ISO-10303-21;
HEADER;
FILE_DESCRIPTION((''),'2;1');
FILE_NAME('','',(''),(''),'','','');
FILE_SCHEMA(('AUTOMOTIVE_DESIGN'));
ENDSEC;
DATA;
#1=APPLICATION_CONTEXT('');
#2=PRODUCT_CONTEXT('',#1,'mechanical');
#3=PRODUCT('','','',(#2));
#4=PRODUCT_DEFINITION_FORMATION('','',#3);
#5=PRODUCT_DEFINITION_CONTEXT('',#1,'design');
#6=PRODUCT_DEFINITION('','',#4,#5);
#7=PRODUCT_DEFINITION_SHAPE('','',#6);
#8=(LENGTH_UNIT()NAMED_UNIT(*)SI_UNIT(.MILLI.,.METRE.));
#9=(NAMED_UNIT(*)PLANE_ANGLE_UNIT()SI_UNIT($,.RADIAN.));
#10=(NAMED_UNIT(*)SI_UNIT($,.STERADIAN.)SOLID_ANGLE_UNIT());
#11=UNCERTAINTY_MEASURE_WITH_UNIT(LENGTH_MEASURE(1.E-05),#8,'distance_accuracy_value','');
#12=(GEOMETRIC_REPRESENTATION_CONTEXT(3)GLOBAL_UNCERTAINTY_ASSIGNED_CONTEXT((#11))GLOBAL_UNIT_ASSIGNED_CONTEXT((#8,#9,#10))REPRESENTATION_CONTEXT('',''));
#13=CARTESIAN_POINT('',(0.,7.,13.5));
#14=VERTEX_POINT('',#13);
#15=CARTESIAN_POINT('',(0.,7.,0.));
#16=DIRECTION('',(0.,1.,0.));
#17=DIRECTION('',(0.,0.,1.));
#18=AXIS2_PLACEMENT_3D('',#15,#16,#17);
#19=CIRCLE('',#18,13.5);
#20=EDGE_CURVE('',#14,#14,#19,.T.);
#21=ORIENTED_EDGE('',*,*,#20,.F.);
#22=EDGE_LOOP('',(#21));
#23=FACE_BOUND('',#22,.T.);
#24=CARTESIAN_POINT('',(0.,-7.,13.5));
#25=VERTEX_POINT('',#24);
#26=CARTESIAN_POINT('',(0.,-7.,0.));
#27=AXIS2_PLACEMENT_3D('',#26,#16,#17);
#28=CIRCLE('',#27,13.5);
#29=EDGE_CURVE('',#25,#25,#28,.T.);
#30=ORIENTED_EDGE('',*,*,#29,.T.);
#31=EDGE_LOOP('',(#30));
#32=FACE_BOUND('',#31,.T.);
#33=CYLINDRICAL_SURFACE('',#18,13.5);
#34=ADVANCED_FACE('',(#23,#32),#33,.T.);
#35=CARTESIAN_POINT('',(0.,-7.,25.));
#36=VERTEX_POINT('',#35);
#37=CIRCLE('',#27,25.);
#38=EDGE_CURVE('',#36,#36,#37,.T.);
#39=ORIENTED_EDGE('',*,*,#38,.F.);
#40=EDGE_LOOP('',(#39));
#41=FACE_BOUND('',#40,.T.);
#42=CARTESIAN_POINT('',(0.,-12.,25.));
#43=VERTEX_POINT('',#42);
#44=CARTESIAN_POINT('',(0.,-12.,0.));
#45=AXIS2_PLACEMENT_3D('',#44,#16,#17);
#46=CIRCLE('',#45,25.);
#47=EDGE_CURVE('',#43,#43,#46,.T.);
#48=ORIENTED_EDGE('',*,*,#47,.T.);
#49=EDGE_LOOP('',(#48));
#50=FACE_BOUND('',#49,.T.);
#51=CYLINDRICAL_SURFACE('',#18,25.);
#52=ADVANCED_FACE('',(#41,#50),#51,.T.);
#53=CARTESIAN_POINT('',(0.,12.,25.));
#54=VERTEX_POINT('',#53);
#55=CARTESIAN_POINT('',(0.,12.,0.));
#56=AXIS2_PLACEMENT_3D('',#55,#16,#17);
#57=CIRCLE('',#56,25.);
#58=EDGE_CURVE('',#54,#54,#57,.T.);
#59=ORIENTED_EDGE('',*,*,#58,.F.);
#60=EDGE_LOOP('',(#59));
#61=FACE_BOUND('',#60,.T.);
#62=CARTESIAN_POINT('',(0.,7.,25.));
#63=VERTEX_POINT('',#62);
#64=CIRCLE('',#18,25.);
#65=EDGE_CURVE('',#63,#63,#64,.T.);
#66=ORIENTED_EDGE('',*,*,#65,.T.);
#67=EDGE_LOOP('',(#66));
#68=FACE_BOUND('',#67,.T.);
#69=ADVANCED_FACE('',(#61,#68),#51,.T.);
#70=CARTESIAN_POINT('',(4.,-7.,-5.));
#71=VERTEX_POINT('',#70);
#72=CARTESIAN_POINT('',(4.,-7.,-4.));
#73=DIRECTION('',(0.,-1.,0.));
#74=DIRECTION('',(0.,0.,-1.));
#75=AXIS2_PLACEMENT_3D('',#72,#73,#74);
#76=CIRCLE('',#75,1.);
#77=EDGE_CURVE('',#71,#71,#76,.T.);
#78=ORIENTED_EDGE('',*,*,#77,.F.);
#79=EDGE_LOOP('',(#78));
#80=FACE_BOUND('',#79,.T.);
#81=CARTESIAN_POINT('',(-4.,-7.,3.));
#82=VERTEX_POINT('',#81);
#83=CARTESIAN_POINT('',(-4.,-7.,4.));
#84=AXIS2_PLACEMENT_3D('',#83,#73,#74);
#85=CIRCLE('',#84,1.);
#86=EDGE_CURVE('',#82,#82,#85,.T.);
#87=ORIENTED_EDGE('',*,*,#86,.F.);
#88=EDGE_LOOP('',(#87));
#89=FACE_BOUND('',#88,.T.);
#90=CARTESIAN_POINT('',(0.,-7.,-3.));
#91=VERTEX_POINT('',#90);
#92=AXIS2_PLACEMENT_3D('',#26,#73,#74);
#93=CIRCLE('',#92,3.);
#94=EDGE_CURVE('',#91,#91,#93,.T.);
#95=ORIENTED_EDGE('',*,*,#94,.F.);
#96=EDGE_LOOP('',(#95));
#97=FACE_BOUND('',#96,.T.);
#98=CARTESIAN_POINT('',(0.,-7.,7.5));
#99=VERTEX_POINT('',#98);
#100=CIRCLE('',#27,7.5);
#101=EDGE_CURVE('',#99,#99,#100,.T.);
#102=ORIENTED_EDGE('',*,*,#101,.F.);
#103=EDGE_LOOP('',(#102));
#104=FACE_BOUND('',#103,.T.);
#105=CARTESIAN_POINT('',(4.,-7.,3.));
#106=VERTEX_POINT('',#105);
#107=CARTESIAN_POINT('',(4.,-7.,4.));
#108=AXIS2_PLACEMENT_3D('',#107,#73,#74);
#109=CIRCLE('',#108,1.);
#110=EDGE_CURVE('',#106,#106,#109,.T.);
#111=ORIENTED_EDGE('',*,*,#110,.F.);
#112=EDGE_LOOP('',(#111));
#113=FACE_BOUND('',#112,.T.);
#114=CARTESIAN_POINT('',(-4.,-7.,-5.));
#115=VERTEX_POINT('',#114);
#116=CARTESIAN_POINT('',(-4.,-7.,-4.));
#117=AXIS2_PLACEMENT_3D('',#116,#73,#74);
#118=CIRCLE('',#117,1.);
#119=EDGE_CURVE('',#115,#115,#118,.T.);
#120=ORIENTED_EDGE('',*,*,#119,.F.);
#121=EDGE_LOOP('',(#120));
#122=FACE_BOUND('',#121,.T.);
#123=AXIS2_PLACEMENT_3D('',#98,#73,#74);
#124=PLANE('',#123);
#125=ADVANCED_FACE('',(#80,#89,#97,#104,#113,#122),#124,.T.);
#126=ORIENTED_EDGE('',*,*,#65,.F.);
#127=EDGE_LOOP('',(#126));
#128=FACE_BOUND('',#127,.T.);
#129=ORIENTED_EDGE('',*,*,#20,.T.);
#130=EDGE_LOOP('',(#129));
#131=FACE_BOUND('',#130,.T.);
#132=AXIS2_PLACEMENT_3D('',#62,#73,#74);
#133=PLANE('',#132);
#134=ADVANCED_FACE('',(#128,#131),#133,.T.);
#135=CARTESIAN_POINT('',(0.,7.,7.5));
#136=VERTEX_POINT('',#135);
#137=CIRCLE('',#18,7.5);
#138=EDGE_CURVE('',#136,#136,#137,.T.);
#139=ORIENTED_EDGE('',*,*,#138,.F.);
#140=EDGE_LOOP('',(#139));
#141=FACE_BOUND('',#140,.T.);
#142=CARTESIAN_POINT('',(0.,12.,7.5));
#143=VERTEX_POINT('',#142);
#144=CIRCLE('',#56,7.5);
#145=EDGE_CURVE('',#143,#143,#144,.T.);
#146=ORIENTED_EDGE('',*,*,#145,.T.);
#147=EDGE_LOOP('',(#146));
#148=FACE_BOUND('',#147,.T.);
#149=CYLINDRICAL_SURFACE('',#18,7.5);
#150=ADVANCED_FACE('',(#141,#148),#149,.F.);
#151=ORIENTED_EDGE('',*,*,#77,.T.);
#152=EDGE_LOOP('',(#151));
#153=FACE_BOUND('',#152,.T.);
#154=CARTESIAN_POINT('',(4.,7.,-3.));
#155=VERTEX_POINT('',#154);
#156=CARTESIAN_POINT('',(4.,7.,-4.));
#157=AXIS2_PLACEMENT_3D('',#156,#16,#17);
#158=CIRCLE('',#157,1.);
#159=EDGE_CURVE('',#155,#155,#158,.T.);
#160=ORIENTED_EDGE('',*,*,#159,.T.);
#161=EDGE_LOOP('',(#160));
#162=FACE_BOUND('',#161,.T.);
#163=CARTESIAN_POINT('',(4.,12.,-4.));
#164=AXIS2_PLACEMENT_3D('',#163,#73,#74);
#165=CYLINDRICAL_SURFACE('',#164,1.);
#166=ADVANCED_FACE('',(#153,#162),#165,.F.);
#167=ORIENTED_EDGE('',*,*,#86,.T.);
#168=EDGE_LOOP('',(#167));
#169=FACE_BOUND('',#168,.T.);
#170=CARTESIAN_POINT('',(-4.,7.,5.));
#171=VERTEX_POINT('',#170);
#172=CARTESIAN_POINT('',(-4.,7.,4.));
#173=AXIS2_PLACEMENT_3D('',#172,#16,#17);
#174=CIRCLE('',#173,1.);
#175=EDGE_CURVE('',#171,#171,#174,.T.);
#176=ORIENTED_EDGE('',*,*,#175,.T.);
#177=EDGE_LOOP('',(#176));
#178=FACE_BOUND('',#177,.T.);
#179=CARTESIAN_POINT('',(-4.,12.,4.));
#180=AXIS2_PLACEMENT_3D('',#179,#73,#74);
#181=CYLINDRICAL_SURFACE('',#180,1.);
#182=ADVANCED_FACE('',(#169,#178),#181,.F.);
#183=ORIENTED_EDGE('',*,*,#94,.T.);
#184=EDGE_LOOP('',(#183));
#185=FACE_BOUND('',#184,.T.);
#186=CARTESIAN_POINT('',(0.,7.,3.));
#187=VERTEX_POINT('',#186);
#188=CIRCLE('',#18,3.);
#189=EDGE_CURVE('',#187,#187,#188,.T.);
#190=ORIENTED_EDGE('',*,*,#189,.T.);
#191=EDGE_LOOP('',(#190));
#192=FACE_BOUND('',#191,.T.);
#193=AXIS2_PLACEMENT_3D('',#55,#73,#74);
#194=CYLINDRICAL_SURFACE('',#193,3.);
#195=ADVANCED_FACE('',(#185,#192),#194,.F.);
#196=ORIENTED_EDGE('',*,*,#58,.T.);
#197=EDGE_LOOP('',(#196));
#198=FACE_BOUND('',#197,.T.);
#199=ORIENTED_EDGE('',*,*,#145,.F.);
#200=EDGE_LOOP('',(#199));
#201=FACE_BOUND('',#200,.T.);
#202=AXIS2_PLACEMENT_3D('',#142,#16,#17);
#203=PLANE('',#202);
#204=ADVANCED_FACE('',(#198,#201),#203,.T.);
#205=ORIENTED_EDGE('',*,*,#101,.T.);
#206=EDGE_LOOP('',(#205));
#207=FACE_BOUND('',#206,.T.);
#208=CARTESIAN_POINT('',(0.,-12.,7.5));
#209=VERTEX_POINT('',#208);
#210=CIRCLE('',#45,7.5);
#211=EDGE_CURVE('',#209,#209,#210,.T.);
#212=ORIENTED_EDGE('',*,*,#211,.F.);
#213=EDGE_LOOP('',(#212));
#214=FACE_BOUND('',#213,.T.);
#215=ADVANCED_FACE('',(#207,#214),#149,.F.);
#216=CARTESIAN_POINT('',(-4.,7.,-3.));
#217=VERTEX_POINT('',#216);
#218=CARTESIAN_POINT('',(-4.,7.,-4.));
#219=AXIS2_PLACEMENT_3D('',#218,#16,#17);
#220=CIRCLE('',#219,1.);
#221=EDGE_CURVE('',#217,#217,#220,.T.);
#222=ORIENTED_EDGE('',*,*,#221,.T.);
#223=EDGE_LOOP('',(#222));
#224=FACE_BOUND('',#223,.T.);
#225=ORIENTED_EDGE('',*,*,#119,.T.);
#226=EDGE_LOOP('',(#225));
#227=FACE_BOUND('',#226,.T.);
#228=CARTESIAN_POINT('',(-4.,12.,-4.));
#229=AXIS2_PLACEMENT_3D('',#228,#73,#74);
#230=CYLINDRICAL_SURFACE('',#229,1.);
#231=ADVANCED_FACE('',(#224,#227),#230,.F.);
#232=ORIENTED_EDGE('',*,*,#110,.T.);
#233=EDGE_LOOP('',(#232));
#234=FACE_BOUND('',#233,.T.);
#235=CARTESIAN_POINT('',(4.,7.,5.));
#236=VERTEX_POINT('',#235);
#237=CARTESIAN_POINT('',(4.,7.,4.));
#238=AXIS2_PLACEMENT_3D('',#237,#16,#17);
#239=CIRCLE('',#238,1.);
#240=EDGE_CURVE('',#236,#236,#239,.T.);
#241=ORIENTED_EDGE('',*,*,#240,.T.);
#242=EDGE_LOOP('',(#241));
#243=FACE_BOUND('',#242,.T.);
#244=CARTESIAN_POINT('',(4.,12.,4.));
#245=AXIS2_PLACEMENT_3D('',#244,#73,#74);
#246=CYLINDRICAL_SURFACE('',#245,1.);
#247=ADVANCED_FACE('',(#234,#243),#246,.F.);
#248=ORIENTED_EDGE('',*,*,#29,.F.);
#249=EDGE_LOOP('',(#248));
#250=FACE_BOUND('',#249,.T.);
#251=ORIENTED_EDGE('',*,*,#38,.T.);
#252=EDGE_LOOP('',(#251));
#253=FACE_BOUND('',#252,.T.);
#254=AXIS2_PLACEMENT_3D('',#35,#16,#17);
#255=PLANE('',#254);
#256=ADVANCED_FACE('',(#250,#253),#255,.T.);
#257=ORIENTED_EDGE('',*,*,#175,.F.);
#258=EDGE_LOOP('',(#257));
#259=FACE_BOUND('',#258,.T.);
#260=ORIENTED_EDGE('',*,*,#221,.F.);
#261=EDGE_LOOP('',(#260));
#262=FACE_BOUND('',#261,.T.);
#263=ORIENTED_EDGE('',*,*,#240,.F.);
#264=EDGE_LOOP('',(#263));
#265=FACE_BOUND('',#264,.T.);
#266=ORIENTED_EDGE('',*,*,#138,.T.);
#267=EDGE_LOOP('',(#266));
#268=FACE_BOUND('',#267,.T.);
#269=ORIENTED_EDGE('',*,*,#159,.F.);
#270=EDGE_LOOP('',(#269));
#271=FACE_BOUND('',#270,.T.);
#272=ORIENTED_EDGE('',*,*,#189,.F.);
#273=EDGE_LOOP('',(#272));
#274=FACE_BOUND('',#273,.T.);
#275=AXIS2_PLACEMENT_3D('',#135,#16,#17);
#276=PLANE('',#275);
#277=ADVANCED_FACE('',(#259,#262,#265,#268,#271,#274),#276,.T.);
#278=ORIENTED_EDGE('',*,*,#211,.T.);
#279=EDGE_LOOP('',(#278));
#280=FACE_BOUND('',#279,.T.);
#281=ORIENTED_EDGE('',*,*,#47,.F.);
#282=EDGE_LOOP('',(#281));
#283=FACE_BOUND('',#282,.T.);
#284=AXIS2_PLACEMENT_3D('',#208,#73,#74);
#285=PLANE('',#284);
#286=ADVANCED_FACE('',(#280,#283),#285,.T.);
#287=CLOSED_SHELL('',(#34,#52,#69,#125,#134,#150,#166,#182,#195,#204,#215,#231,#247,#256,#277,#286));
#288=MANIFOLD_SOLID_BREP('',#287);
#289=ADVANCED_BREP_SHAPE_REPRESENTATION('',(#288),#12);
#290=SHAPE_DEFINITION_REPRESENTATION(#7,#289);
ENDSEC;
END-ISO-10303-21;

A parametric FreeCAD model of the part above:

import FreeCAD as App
import Part
import Sketcher
from FreeCAD import Vector
Q = App.Units.Quantity


def add_polygon(sketch, points):
    """Adds a closed chain of lines whose ends are joined by coincident constraints."""
    first, n = sketch.GeometryCount, len(points)
    for a, b in zip(points, points[1:] + points[:1]):
        sketch.addGeometry(Part.LineSegment(App.Vector(*a, 0), App.Vector(*b, 0)), False)
    for i in range(n):
        sketch.addConstraint(Sketcher.Constraint("Coincident", first + i, 2, first + (i + 1) % n, 1))

doc = App.newDocument("Part")
body = doc.addObject("PartDesign::Body", "Body")

sketch1 = body.newObject("Sketcher::SketchObject", "Sketch")
sketch1.AttachmentSupport = (doc.getObject("YZ_Plane"), [""])
sketch1.MapMode = "FlatFace"
add_polygon(sketch1, [(-7, 0), (7, 0), (7, 8), (12, 8), (12, 25), (7, 25), (7, 14), (-7, 14), (-7, 25), (-12, 25), (-12, 8), (-7, 8)])
sketch1.addConstraint([
    Sketcher.Constraint("Horizontal", 0),
    Sketcher.Constraint("Vertical", 1),
    Sketcher.Constraint("Horizontal", 2),
    Sketcher.Constraint("Vertical", 3),
    Sketcher.Constraint("Horizontal", 4),
    Sketcher.Constraint("Vertical", 5),
    Sketcher.Constraint("Horizontal", 6),
    Sketcher.Constraint("Vertical", 7),
    Sketcher.Constraint("Horizontal", 8),
    Sketcher.Constraint("Vertical", 9),
    Sketcher.Constraint("Horizontal", 10),
    Sketcher.Constraint("Vertical", 11),
    Sketcher.Constraint("Symmetric", 0, 2, 11, 2, -1, 1),
    Sketcher.Constraint("Symmetric", 4, 2, 7, 2, -2),
    Sketcher.Constraint("Symmetric", 2, 2, 9, 2, -2),
    Sketcher.Constraint("Vertical", 1, 2, 4, 2),
    Sketcher.Constraint("DistanceX", 0, 1, 0, 2, Q("14 mm")),
    Sketcher.Constraint("DistanceX", 2, 1, 2, 2, Q("5 mm")),
    Sketcher.Constraint("DistanceY", 1, 1, 1, 2, Q("7.5 mm")),
    Sketcher.Constraint("DistanceY", 3, 1, 3, 2, Q("17.5 mm")),
    Sketcher.Constraint("DistanceY", 5, 2, 5, 1, Q("11.5 mm")),
])
revolution = body.newObject("PartDesign::Revolution", "Revolution")
revolution.Profile = sketch1
revolution.ReferenceAxis = (sketch1, ["H_Axis"])
revolution.Angle = 360

sketch2 = body.newObject("Sketcher::SketchObject", "Sketch001")
sketch2.AttachmentSupport = (doc.getObject("XZ_Plane"), [""])
sketch2.MapMode = "FlatFace"
sketch2.AttachmentOffset = App.Placement(Vector(0, 0, 7), App.Rotation())
sketch2.addGeometry([
    Part.Circle(Vector(0, 0, 0), Vector(0, 0, 1), 3),
    Part.Circle(Vector(4, -4, 0), Vector(0, 0, 1), 1),
    Part.Circle(Vector(-4, -4, 0), Vector(0, 0, 1), 1),
    Part.Circle(Vector(-4, 4, 0), Vector(0, 0, 1), 1),
    Part.Circle(Vector(4, 4, 0), Vector(0, 0, 1), 1),
], False)
sketch2.addConstraint([
    Sketcher.Constraint("Coincident", 0, 3, -1, 1),
    Sketcher.Constraint("Equal", 1, 2),
    Sketcher.Constraint("Equal", 2, 3),
    Sketcher.Constraint("Equal", 3, 4),
    Sketcher.Constraint("Symmetric", 1, 3, 3, 3, -1, 1),
    Sketcher.Constraint("Symmetric", 2, 3, 4, 3, -1, 1),
    Sketcher.Constraint("Symmetric", 1, 3, 2, 3, -2),
    Sketcher.Constraint("Diameter", 0, Q("6 mm")),
    Sketcher.Constraint("Diameter", 1, Q("2 mm")),
    Sketcher.Constraint("DistanceX", -1, 1, 1, 3, Q("4 mm")),
    Sketcher.Constraint("DistanceY", 1, 3, -1, 1, Q("4 mm")),
])
pocket1 = body.newObject("PartDesign::Pocket", "Pocket")
pocket1.Profile = sketch2
pocket1.Type = "ThroughAll"
pocket1.Midplane = True

doc.recompute()
